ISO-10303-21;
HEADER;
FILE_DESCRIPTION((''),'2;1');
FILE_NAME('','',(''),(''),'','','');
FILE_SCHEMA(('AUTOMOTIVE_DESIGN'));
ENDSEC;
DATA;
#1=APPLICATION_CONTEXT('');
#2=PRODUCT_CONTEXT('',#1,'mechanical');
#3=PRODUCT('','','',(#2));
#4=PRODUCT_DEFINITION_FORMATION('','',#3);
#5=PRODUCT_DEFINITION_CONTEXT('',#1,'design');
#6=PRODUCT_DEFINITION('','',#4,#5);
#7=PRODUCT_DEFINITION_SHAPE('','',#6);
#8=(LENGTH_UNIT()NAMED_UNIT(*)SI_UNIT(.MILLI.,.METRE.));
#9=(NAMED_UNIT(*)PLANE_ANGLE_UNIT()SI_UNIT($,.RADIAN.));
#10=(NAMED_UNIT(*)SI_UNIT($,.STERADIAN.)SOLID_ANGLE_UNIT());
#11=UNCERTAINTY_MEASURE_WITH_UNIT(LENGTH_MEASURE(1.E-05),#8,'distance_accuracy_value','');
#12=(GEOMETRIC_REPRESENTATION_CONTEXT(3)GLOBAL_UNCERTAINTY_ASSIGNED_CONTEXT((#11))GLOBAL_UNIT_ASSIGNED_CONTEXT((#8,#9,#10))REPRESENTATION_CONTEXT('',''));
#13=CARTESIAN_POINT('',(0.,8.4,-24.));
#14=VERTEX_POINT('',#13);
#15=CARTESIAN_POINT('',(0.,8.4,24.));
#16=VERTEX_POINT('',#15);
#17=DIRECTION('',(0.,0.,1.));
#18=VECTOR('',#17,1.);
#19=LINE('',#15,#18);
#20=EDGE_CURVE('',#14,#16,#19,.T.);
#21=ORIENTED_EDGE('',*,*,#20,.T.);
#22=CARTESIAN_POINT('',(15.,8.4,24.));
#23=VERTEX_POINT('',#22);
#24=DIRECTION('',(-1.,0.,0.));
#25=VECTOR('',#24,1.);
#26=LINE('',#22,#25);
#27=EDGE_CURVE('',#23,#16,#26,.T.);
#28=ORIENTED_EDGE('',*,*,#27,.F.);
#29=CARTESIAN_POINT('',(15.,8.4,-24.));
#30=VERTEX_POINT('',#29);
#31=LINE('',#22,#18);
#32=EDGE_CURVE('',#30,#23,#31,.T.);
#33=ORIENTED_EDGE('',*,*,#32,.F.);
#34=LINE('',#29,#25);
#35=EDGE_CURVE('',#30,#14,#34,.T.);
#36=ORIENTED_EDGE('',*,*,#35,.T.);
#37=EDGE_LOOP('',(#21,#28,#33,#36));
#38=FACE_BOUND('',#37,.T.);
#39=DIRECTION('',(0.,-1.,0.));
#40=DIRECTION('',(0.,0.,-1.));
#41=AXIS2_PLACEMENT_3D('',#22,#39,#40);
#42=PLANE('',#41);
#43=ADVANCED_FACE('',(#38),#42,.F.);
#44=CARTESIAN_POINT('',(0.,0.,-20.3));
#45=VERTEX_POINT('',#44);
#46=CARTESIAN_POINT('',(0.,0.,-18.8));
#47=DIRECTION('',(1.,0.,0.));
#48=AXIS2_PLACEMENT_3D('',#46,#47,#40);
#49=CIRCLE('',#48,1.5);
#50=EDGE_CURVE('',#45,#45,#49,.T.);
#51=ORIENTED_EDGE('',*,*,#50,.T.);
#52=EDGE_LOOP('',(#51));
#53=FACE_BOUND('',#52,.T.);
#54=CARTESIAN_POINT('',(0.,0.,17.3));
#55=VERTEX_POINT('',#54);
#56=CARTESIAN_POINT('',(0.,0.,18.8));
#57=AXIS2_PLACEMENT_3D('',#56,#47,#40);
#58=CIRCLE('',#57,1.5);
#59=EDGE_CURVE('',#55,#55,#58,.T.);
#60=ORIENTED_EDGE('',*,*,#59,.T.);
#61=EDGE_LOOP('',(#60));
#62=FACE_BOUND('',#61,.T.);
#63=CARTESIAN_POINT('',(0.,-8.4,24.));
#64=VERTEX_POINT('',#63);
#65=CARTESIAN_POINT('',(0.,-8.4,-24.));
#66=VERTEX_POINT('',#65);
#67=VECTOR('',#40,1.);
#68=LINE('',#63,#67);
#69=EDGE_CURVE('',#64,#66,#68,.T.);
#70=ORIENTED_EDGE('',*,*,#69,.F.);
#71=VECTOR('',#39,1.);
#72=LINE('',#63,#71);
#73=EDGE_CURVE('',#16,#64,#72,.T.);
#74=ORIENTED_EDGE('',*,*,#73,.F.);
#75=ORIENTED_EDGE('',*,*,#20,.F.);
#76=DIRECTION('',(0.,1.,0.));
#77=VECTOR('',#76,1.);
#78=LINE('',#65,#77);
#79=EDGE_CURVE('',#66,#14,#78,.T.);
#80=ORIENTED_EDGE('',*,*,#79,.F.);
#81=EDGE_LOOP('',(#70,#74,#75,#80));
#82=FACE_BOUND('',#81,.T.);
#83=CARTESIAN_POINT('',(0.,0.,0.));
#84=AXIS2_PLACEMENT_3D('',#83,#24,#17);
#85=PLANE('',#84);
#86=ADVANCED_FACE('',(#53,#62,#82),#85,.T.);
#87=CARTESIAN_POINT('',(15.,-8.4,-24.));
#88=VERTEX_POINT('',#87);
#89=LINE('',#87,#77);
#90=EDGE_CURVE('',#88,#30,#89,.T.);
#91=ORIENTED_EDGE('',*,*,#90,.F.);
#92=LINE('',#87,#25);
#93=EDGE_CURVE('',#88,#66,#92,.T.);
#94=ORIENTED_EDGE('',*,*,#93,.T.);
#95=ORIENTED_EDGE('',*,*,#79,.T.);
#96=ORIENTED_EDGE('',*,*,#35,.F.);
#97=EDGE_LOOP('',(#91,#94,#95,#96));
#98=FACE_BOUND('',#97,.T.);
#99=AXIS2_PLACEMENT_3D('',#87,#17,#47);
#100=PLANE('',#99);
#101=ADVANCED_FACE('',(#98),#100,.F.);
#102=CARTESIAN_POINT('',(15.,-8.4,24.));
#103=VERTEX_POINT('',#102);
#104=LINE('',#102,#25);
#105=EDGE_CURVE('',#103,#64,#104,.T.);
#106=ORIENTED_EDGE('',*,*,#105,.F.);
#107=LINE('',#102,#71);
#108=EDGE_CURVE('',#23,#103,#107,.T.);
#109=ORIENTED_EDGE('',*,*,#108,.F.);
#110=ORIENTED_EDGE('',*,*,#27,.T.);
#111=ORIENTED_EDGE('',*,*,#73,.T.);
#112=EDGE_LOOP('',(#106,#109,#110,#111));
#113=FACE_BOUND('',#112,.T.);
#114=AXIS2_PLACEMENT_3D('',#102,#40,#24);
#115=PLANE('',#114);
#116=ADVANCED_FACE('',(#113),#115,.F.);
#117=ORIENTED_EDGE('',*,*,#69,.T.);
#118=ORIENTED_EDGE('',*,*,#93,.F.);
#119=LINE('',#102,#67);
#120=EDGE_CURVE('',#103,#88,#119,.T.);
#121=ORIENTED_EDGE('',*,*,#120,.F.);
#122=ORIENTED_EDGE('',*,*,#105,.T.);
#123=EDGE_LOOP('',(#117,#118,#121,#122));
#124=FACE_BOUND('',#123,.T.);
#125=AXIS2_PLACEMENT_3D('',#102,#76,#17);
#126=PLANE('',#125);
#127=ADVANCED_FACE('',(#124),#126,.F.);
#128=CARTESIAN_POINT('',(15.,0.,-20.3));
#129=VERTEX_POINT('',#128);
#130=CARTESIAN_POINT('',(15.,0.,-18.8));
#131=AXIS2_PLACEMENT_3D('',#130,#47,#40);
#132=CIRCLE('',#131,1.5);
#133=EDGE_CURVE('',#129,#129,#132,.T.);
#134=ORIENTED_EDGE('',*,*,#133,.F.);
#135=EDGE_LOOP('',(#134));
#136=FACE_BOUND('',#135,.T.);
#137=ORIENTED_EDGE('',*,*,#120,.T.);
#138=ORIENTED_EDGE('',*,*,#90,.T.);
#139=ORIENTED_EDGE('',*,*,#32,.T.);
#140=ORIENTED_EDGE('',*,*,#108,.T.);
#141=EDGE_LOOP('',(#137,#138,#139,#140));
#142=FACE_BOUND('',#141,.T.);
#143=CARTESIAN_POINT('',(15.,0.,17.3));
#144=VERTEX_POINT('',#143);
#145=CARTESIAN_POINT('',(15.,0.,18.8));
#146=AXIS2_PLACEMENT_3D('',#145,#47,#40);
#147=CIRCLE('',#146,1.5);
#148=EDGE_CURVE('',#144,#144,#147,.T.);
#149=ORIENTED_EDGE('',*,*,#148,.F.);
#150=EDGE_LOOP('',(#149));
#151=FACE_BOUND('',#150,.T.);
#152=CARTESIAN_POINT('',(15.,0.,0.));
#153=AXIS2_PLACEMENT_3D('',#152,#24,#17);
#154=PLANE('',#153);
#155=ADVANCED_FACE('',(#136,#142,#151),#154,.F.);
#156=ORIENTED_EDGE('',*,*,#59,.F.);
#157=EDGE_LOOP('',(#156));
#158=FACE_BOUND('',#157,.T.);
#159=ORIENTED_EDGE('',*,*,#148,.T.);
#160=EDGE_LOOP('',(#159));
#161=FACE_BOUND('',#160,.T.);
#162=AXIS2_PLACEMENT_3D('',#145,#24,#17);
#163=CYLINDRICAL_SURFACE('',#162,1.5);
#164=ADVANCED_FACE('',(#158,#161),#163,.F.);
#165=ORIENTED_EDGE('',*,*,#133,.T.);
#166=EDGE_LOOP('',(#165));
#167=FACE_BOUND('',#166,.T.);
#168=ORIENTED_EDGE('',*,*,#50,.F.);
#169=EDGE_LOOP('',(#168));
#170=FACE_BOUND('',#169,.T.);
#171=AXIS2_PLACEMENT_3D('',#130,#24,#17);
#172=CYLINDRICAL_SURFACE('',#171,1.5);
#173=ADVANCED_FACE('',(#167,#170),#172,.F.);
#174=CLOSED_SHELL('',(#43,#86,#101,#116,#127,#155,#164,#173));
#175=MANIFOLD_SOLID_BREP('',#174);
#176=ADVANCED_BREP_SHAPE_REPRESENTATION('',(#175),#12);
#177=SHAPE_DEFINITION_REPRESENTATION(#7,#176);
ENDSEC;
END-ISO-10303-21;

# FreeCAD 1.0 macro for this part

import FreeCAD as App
import Part
import Sketcher

V = App.Vector
Q = App.Units.Quantity

doc = App.newDocument("Part")
body = doc.addObject("PartDesign::Body", "Body")

# Sketch on YZ plane
sketch1 = body.newObject("Sketcher::SketchObject", "Sketch")
sketch1.AttachmentSupport = (doc.getObject("YZ_Plane"), [""])
sketch1.MapMode = "FlatFace"
sketch1.addGeometry(Part.LineSegment(V(8.4, 24, 0), V(-8.4, 24, 0)), False)
sketch1.addGeometry(Part.LineSegment(V(-8.4, 24, 0), V(-8.4, -24, 0)), False)
sketch1.addGeometry(Part.LineSegment(V(-8.4, -24, 0), V(8.4, -24, 0)), False)
sketch1.addGeometry(Part.LineSegment(V(8.4, -24, 0), V(8.4, 24, 0)), False)
sketch1.addGeometry(Part.Circle(V(0, 18.8, 0), V(0, 0, 1), 1.5), False)
sketch1.addGeometry(Part.Circle(V(0, -18.8, 0), V(0, 0, 1), 1.5), False)
sketch1.addConstraint(Sketcher.Constraint("Coincident", 0, 2, 1, 1))
sketch1.addConstraint(Sketcher.Constraint("Coincident", 1, 2, 2, 1))
sketch1.addConstraint(Sketcher.Constraint("Coincident", 2, 2, 3, 1))
sketch1.addConstraint(Sketcher.Constraint("Coincident", 3, 2, 0, 1))
sketch1.addConstraint(Sketcher.Constraint("Horizontal", 0))
sketch1.addConstraint(Sketcher.Constraint("Vertical", 1))
sketch1.addConstraint(Sketcher.Constraint("Horizontal", 2))
sketch1.addConstraint(Sketcher.Constraint("Vertical", 3))
sketch1.addConstraint(Sketcher.Constraint("Equal", 4, 5))
sketch1.addConstraint(Sketcher.Constraint("Symmetric", 4, 3, 5, 3, -1, 1))
sketch1.addConstraint(Sketcher.Constraint("Symmetric", 0, 2, 2, 2, -1, 1))
sketch1.addConstraint(Sketcher.Constraint("PointOnObject", 4, 3, -2))
sketch1.addConstraint(Sketcher.Constraint("Diameter", 4, Q("3 mm")))
sketch1.addConstraint(Sketcher.Constraint("DistanceY", 1, 2, 1, 1, Q("48 mm")))
sketch1.addConstraint(Sketcher.Constraint("DistanceX", 0, 2, 0, 1, Q("16.8 mm")))
sketch1.addConstraint(Sketcher.Constraint("DistanceY", -1, 1, 4, 3, Q("18.8 mm")))
pad1 = body.newObject("PartDesign::Pad", "Pad")
pad1.Profile = sketch1
pad1.Length = 15

doc.recompute()
